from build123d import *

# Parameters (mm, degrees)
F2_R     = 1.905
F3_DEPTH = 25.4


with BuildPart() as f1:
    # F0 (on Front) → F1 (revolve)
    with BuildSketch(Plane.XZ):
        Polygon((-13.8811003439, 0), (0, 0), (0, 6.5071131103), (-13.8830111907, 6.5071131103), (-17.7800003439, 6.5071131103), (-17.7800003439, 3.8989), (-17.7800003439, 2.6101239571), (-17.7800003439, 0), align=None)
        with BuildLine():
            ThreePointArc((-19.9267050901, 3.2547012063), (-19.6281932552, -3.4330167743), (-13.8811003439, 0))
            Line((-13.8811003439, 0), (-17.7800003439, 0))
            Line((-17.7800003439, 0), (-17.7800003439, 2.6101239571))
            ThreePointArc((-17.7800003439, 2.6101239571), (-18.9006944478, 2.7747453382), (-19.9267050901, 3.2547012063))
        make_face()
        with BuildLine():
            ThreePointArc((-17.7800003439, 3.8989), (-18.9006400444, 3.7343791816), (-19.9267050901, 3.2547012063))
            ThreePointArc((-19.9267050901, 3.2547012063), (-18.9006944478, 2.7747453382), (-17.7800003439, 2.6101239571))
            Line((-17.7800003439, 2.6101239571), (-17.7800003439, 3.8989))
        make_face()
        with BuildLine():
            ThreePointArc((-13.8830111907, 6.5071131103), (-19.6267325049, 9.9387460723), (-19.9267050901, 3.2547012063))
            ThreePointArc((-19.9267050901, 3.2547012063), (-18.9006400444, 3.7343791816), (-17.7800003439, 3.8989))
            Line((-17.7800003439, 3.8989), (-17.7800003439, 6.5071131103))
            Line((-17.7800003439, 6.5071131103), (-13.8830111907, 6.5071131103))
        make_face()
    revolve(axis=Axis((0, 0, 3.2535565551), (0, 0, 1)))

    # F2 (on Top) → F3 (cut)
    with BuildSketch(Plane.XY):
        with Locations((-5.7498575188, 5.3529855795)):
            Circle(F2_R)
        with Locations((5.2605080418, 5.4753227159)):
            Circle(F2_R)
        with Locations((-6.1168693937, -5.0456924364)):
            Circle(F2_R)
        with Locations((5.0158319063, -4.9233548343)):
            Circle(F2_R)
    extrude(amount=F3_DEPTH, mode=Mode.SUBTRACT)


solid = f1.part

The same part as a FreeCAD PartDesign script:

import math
import FreeCAD as App
import Part
import Sketcher

V = App.Vector
Q = App.Units.Quantity

doc = App.newDocument("Part")
body = doc.addObject("PartDesign::Body", "Body")

# Sketch on XZ plane
sketch1 = doc.addObject("Sketcher::SketchObject", "Sketch")
body.addObject(sketch1)
sketch1.AttachmentSupport = (doc.XZ_Plane, [""])
sketch1.MapMode = "FlatFace"
sketch1.addGeometry([
    Part.LineSegment(V(0, 0, 0), V(0, 6.5, 0)),  # 0
    Part.LineSegment(V(0, 6.5, 0), V(-13.9, 6.5, 0)),  # 1
    Part.ArcOfCircle(Part.Circle(V(-17.8, 6.5, 0), V(0, 0, 1), 3.9), math.radians(0), math.radians(237)),  # 2
    Part.ArcOfCircle(Part.Circle(V(-17.8, 0, 0), V(0, 0, 1), 3.9), math.radians(123), math.radians(360)),  # 3
    Part.LineSegment(V(-13.9, 0, 0), V(0, 0, 0)),  # 4
], False)
sketch1.addConstraint([
    Sketcher.Constraint("Coincident", 0, 2, 1, 1),
    Sketcher.Constraint("Coincident", 1, 2, 2, 1),
    Sketcher.Constraint("Coincident", 2, 2, 3, 1),
    Sketcher.Constraint("Coincident", 3, 2, 4, 1),
    Sketcher.Constraint("Coincident", 4, 2, 0, 1),
    Sketcher.Constraint("Vertical", 0),
    Sketcher.Constraint("Horizontal", 1),
    Sketcher.Constraint("Horizontal", 4),
    Sketcher.Constraint("Coincident", 4, 2, -1, 1),
    Sketcher.Constraint("PointOnObject", 3, 3, -1),
    Sketcher.Constraint("Horizontal", 2, 3, 0, 2),
    Sketcher.Constraint("Vertical", 2, 3, 3, 3),
    Sketcher.Constraint("DistanceX", 2, 3, -1, 1, Q("0.7 in")),
    Sketcher.Constraint("Radius", 3, Q("0.1535 in")),
    Sketcher.Constraint("Radius", 2, 3.896989),
    Sketcher.Constraint("DistanceY", -1, 1, 2, 2, 3.254701),
])
revolution = doc.addObject("PartDesign::Revolution", "Revolution")
body.addObject(revolution)
revolution.Profile = sketch1
revolution.ReferenceAxis = (sketch1, ["V_Axis"])
revolution.Angle = 360

# Sketch on XY plane
sketch2 = doc.addObject("Sketcher::SketchObject", "Sketch001")
body.addObject(sketch2)
sketch2.AttachmentSupport = (doc.XY_Plane, [""])
sketch2.MapMode = "FlatFace"
sketch2.addGeometry([
    Part.Circle(V(-5.7, 5.4, 0), V(0, 0, 1), 1.9),
    Part.Circle(V(5.3, 5.5, 0), V(0, 0, 1), 1.9),
    Part.Circle(V(-6.1, -5, 0), V(0, 0, 1), 1.9),
    Part.Circle(V(5, -4.9, 0), V(0, 0, 1), 1.9),
], False)
sketch2.addConstraint([
    Sketcher.Constraint("Equal", 0, 1),
    Sketcher.Constraint("Equal", 1, 2),
    Sketcher.Constraint("Equal", 2, 3),
    Sketcher.Constraint("Diameter", 0, Q("0.15 in")),
    Sketcher.Constraint("DistanceX", 2, 3, 3, 3, 11.132701),
    Sketcher.Constraint("DistanceX", -1, 1, 1, 3, 5.260508),
    Sketcher.Constraint("DistanceX", 2, 3, -1, 1, 6.116869),
    Sketcher.Constraint("DistanceX", 2, 3, 0, 3, 0.367012),
    Sketcher.Constraint("DistanceY", 2, 3, 0, 3, 10.398678),
    Sketcher.Constraint("DistanceY", 3, 3, 0, 3, 10.27634),
    Sketcher.Constraint("DistanceY", -1, 1, 0, 3, 5.352986),
    Sketcher.Constraint("DistanceY", -1, 1, 1, 3, 5.475323),
])
pocket1 = doc.addObject("PartDesign::Pocket", "Pocket")
body.addObject(pocket1)
pocket1.Profile = sketch2
pocket1.Length = Q("1 in")
pocket1.Reversed = True

doc.recompute()
